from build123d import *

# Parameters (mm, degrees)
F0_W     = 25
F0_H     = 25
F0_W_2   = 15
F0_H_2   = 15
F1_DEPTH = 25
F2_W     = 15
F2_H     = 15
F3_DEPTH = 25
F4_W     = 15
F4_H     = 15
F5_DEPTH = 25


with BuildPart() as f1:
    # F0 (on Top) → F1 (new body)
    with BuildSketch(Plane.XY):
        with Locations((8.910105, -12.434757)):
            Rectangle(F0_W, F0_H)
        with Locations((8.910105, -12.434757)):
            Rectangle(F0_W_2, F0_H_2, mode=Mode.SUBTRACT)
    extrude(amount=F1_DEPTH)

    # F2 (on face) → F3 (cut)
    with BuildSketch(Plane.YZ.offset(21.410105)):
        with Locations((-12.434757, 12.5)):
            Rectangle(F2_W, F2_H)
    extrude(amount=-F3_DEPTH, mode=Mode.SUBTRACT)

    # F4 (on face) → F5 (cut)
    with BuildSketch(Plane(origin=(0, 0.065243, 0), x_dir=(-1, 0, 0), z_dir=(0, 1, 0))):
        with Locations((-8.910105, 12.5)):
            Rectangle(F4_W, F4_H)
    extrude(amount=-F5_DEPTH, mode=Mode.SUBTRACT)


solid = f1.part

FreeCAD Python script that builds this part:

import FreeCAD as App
import Part
import Sketcher
from FreeCAD import Vector
Q = App.Units.Quantity


def add_polygon(sketch, points):
    """Adds a closed chain of lines whose ends are joined by coincident constraints."""
    first, n = sketch.GeometryCount, len(points)
    for a, b in zip(points, points[1:] + points[:1]):
        sketch.addGeometry(Part.LineSegment(App.Vector(*a, 0), App.Vector(*b, 0)), False)
    for i in range(n):
        sketch.addConstraint(Sketcher.Constraint("Coincident", first + i, 2, first + (i + 1) % n, 1))

doc = App.newDocument("Part")
params = doc.addObject("Spreadsheet::Sheet", "Params")
for row, (alias, value) in enumerate([
    ("sketch1_width", "25 mm"),
    ("sketch1_width2", "15 mm"),
    ("pad1_length", "25 mm"),
    ("sketch2_width", "15 mm"),
    ("pocket1_length", "25 mm"),
    ("sketch3_width", "15 mm"),
    ("pocket2_length", "25 mm"),
], start=1):
    params.set(f"A{row}", alias)
    params.set(f"B{row}", "=" + value)
    params.setAlias(f"B{row}", alias)

body = doc.addObject("PartDesign::Body", "Body")

sketch1 = body.newObject("Sketcher::SketchObject", "Sketch")
sketch1.AttachmentSupport = (doc.getObject("XY_Plane"), [""])
sketch1.MapMode = "FlatFace"
add_polygon(sketch1, [(-3.589895, 0.065243), (-3.589895, -24.934757), (21.410105, -24.934757), (21.410105, 0.065243)])
add_polygon(sketch1, [(16.410105, -19.934757), (1.410105, -19.934757), (1.410105, -4.934757), (16.410105, -4.934757)])
sketch1.addConstraint([
    Sketcher.Constraint("Vertical", 0),
    Sketcher.Constraint("Horizontal", 1),
    Sketcher.Constraint("Vertical", 2),
    Sketcher.Constraint("Horizontal", 3),
    Sketcher.Constraint("Horizontal", 4),
    Sketcher.Constraint("Vertical", 5),
    Sketcher.Constraint("Horizontal", 6),
    Sketcher.Constraint("Vertical", 7),
    Sketcher.Constraint("Equal", 3, 0),
    Sketcher.Constraint("Equal", 6, 5),
    Sketcher.Constraint("DistanceX", 1, 1, 1, 2, Q("25 mm")),
    Sketcher.Constraint("DistanceX", 4, 2, 4, 1, Q("15 mm")),
    Sketcher.Constraint("DistanceX", 0, 2, 4, 2, Q("5 mm")),
    Sketcher.Constraint("DistanceY", 0, 2, 4, 2, Q("5 mm")),
    Sketcher.Constraint("DistanceX", 0, 2, -1, 1, Q("3.589895 mm")),
    Sketcher.Constraint("DistanceY", 0, 2, -1, 1, Q("24.934757 mm")),
])
sketch1.setExpression("Constraints[18]", "Params.sketch1_width")
sketch1.setExpression("Constraints[19]", "Params.sketch1_width2")
pad1 = body.newObject("PartDesign::Pad", "Pad")
pad1.Profile = sketch1
pad1.setExpression("Length", "Params.pad1_length")

sketch2 = body.newObject("Sketcher::SketchObject", "Sketch001")
sketch2.AttachmentSupport = (doc.getObject("YZ_Plane"), [""])
sketch2.MapMode = "FlatFace"
sketch2.AttachmentOffset = App.Placement(Vector(0, 0, 21.410105), App.Rotation())
add_polygon(sketch2, [(-19.934757, 20), (-19.934757, 5), (-4.934757, 5), (-4.934757, 20)])
sketch2.addConstraint([
    Sketcher.Constraint("Vertical", 0),
    Sketcher.Constraint("Horizontal", 1),
    Sketcher.Constraint("Vertical", 2),
    Sketcher.Constraint("Horizontal", 3),
    Sketcher.Constraint("Equal", 3, 0),
    Sketcher.Constraint("DistanceX", 1, 1, 1, 2, Q("15 mm")),
    Sketcher.Constraint("DistanceY", -1, 1, 0, 2, Q("5 mm")),
    Sketcher.Constraint("DistanceX", 0, 2, -1, 1, Q("19.934757 mm")),
])
sketch2.setExpression("Constraints[9]", "Params.sketch2_width")
pocket1 = body.newObject("PartDesign::Pocket", "Pocket")
pocket1.Profile = sketch2
pocket1.setExpression("Length", "Params.pocket1_length")

sketch3 = body.newObject("Sketcher::SketchObject", "Sketch002")
sketch3.AttachmentSupport = (doc.getObject("XZ_Plane"), [""])
sketch3.MapMode = "FlatFace"
sketch3.AttachmentOffset = App.Placement(Vector(0, 0, -0.065243), App.Rotation())
add_polygon(sketch3, [(16.410105, 20), (16.410105, 5), (1.410105, 5), (1.410105, 20)])
sketch3.addConstraint([
    Sketcher.Constraint("Vertical", 0),
    Sketcher.Constraint("Horizontal", 1),
    Sketcher.Constraint("Vertical", 2),
    Sketcher.Constraint("Horizontal", 3),
    Sketcher.Constraint("Equal", 3, 0),
    Sketcher.Constraint("DistanceX", 1, 2, 1, 1, Q("15 mm")),
    Sketcher.Constraint("DistanceY", -1, 1, 0, 2, Q("5 mm")),
    Sketcher.Constraint("DistanceX", -1, 1, 0, 2, Q("16.410105 mm")),
])
sketch3.setExpression("Constraints[9]", "Params.sketch3_width")
pocket2 = body.newObject("PartDesign::Pocket", "Pocket001")
pocket2.Profile = sketch3
pocket2.setExpression("Length", "Params.pocket2_length")
pocket2.Reversed = True

doc.recompute()
